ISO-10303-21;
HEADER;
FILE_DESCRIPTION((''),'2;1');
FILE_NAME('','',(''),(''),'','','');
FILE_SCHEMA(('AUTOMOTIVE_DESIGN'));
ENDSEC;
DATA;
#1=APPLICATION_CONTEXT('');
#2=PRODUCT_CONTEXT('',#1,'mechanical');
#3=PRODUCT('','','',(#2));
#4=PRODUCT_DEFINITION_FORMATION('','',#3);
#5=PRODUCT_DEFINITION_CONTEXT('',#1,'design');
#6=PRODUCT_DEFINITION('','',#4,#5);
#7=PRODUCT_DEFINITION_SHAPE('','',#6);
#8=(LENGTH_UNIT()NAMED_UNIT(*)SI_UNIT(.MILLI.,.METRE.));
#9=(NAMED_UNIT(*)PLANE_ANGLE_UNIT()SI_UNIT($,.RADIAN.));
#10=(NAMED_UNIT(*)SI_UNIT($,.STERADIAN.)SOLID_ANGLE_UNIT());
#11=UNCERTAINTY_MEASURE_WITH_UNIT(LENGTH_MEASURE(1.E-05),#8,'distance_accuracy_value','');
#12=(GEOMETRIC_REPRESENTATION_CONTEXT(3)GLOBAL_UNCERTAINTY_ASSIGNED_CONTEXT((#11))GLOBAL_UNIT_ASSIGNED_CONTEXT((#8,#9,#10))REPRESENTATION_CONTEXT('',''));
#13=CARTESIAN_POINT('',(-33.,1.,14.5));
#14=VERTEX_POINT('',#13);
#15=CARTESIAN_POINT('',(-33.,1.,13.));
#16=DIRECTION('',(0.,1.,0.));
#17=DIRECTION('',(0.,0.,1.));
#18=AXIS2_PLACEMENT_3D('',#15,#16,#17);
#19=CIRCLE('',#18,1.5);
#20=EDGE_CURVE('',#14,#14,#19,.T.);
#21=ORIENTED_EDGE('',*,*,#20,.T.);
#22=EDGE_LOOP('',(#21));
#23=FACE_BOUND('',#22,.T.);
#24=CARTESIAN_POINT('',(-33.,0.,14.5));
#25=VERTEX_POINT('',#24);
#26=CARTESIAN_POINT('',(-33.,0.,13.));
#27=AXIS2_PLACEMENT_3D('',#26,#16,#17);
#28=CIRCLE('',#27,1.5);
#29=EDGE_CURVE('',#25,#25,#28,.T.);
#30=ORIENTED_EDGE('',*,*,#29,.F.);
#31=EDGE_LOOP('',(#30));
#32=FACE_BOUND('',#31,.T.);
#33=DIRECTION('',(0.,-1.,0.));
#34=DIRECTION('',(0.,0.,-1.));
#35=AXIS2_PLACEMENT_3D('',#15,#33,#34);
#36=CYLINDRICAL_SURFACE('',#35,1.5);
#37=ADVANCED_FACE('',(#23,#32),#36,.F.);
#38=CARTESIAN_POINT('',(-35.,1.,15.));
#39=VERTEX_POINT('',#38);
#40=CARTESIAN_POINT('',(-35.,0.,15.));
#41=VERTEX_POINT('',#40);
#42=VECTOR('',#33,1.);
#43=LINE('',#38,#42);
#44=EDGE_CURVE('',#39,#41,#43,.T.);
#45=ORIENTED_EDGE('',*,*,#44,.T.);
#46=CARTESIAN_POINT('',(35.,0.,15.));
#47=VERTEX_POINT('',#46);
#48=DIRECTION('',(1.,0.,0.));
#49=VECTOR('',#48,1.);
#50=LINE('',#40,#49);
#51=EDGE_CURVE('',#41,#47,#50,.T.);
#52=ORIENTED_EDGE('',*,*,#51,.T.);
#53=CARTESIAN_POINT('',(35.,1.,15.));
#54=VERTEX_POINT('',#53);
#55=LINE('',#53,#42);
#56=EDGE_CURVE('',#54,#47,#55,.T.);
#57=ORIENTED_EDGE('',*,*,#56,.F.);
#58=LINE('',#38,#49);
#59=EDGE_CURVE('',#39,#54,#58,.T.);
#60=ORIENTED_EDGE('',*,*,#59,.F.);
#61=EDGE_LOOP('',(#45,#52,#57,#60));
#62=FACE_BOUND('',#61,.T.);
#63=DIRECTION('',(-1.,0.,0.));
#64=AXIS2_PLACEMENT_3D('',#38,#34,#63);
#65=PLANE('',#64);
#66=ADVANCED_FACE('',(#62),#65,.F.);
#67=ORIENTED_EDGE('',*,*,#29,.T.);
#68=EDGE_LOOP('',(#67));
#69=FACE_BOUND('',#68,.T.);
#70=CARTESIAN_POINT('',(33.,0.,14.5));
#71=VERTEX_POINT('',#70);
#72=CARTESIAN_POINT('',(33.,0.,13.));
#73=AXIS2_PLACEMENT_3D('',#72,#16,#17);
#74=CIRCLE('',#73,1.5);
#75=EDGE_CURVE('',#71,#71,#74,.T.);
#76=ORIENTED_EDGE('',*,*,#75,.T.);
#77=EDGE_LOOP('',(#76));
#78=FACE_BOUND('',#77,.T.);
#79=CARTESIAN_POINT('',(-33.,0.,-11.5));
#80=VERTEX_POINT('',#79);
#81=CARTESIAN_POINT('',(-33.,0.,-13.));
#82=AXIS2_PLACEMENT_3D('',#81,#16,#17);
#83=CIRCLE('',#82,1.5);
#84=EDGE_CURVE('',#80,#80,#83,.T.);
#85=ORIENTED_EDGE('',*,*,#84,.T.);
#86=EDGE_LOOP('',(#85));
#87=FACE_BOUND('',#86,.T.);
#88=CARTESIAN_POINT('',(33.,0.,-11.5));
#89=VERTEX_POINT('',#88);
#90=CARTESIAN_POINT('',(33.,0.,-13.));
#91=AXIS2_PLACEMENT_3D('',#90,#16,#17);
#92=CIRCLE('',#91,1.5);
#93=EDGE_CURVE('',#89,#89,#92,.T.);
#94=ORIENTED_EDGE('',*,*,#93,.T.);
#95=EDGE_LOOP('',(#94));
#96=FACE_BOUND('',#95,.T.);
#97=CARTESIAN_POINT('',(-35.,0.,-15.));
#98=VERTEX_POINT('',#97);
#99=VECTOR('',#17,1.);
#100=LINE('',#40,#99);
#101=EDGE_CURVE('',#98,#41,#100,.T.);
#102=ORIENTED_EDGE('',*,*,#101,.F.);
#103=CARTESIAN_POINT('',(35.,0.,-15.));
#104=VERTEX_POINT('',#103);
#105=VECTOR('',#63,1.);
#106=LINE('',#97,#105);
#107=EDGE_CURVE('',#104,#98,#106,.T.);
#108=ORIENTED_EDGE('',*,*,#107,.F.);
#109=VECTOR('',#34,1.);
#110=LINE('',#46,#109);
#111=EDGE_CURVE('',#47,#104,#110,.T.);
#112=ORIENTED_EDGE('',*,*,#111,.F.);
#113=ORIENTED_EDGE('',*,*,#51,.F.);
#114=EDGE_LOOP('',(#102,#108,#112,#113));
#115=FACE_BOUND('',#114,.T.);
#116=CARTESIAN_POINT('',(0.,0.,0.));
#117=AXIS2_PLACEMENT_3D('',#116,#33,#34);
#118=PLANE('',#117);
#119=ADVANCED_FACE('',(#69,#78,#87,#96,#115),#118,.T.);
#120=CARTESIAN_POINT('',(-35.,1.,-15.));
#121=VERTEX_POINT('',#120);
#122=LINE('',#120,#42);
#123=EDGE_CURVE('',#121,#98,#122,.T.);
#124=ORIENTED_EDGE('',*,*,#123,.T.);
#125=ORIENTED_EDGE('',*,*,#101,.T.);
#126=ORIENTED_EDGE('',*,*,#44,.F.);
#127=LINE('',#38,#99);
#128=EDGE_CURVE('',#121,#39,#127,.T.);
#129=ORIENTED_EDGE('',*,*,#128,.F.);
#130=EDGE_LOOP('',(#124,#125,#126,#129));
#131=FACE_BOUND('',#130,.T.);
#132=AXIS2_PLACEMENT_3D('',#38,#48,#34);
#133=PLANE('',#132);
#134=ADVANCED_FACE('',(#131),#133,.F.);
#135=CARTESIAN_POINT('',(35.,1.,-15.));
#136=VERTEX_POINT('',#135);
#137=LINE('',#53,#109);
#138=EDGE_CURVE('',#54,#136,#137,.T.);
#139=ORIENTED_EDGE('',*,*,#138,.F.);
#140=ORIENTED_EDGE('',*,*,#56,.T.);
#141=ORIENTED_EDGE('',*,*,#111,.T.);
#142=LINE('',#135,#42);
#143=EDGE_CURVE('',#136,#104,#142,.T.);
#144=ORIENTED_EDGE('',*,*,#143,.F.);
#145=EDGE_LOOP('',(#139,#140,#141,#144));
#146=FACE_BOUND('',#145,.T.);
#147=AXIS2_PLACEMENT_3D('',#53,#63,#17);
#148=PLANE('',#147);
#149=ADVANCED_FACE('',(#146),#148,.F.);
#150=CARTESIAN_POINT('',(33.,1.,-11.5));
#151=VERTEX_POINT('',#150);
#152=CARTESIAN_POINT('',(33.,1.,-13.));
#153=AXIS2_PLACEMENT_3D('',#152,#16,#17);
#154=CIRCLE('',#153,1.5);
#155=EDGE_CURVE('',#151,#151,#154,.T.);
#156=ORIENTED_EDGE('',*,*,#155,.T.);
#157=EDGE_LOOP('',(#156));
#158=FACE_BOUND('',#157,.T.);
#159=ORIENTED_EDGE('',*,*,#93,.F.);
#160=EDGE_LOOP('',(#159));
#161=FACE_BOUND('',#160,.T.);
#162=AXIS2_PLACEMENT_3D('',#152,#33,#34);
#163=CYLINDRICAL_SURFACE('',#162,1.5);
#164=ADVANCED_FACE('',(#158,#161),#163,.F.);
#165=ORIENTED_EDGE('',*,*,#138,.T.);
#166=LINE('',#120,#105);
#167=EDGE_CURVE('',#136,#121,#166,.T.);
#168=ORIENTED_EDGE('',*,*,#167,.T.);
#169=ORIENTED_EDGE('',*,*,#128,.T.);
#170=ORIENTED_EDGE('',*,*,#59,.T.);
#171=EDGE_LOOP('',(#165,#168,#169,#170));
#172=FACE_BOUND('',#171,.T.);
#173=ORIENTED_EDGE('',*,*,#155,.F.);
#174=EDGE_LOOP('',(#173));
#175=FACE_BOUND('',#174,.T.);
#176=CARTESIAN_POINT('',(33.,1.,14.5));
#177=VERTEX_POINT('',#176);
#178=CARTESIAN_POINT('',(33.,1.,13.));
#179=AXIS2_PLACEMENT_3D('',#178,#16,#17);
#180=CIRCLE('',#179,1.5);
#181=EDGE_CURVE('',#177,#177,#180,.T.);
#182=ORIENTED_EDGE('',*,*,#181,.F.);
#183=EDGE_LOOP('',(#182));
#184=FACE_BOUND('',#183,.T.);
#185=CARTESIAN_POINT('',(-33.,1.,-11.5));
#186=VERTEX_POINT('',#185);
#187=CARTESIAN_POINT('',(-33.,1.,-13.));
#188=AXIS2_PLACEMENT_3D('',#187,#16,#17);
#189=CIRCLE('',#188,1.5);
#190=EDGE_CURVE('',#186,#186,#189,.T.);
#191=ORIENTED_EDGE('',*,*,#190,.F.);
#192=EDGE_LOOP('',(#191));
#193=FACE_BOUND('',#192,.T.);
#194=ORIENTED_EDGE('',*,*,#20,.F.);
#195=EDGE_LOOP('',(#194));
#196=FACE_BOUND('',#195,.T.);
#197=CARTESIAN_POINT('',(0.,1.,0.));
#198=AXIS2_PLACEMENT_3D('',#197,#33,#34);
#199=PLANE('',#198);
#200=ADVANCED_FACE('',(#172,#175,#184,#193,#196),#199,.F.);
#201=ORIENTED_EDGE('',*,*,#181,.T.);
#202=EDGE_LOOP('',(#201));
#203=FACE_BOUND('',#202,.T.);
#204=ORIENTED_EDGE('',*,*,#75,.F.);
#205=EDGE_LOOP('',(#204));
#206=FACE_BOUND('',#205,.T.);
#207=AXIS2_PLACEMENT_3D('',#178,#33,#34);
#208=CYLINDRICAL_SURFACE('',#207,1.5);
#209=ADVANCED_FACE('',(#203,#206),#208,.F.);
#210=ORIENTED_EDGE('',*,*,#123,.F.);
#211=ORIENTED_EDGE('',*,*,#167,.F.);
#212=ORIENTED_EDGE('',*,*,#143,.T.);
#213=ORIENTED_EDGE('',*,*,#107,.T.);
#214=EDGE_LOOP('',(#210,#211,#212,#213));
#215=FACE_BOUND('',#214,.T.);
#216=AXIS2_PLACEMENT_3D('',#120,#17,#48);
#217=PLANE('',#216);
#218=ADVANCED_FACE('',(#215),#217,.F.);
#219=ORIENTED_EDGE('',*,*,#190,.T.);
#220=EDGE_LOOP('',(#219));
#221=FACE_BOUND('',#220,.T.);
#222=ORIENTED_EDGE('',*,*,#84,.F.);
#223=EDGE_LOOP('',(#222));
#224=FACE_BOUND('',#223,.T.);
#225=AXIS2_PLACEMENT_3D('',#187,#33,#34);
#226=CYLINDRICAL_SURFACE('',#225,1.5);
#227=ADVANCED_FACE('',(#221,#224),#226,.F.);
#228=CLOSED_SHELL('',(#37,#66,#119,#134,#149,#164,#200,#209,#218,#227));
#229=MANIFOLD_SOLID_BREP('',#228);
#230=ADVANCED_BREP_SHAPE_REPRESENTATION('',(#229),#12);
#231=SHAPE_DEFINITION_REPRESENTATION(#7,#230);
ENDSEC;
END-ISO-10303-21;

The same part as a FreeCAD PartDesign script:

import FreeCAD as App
import Part
import Sketcher

V = App.Vector
Q = App.Units.Quantity


def add_polygon(sketch, points):
    """Adds a closed chain of lines whose ends are joined by coincident constraints."""
    first, n = sketch.GeometryCount, len(points)
    for a, b in zip(points, points[1:] + points[:1]):
        sketch.addGeometry(Part.LineSegment(App.Vector(*a, 0), App.Vector(*b, 0)), False)
    for i in range(n):
        sketch.addConstraint(Sketcher.Constraint("Coincident", first + i, 2, first + (i + 1) % n, 1))

doc = App.newDocument("Part")
params = doc.addObject("Spreadsheet::Sheet", "Params")
for row, (alias, value) in enumerate([
    ("sketch1_diameter", "3 mm"),
    ("sketch1_width", "70 mm"),
    ("sketch1_height", "30 mm"),
    ("pad1_length", "1 mm"),
], start=1):
    params.set(f"A{row}", alias)
    params.set(f"B{row}", "=" + value)
    params.setAlias(f"B{row}", alias)

body = doc.addObject("PartDesign::Body", "Body")

# Sketch on XZ plane
sketch1 = body.newObject("Sketcher::SketchObject", "Sketch")
sketch1.AttachmentSupport = (doc.getObject("XZ_Plane"), [""])
sketch1.MapMode = "FlatFace"
add_polygon(sketch1, [(-35, -15), (-35, 15), (35, 15), (35, -15)])  # lines 0-3
sketch1.addGeometry(Part.Circle(V(-33, 13, 0), V(0, 0, 1), 1.5), False)  # 4
sketch1.addGeometry(Part.Circle(V(33, 13, 0), V(0, 0, 1), 1.5), False)  # 5
sketch1.addGeometry(Part.Circle(V(-33, -13, 0), V(0, 0, 1), 1.5), False)  # 6
sketch1.addGeometry(Part.Circle(V(33, -13, 0), V(0, 0, 1), 1.5), False)  # 7
sketch1.addConstraint([
    Sketcher.Constraint("Vertical", 0),
    Sketcher.Constraint("Horizontal", 1),
    Sketcher.Constraint("Vertical", 2),
    Sketcher.Constraint("Horizontal", 3),
    Sketcher.Constraint("Equal", 4, 5),
    Sketcher.Constraint("Equal", 5, 6),
    Sketcher.Constraint("Equal", 6, 7),
    Sketcher.Constraint("Symmetric", 5, 3, 6, 3, -1, 1),
    Sketcher.Constraint("Symmetric", 4, 3, 7, 3, -1, 1),
    Sketcher.Constraint("Symmetric", 0, 2, 2, 2, -1, 1),
    Sketcher.Constraint("Symmetric", 4, 3, 5, 3, -2),
    Sketcher.Constraint("Diameter", 4, Q("3 mm")),
    Sketcher.Constraint("DistanceX", 1, 1, 1, 2, Q("70 mm")),
    Sketcher.Constraint("DistanceY", 0, 1, 0, 2, Q("30 mm")),
    Sketcher.Constraint("DistanceX", 4, 3, -1, 1, Q("33 mm")),
    Sketcher.Constraint("DistanceY", -1, 1, 4, 3, Q("13 mm")),
])
sketch1.setExpression("Constraints[15]", "Params.sketch1_diameter")
sketch1.setExpression("Constraints[16]", "Params.sketch1_width")
sketch1.setExpression("Constraints[17]", "Params.sketch1_height")
pad1 = body.newObject("PartDesign::Pad", "Pad")
pad1.Profile = sketch1
pad1.setExpression("Length", "Params.pad1_length")
pad1.Reversed = True

doc.recompute()
